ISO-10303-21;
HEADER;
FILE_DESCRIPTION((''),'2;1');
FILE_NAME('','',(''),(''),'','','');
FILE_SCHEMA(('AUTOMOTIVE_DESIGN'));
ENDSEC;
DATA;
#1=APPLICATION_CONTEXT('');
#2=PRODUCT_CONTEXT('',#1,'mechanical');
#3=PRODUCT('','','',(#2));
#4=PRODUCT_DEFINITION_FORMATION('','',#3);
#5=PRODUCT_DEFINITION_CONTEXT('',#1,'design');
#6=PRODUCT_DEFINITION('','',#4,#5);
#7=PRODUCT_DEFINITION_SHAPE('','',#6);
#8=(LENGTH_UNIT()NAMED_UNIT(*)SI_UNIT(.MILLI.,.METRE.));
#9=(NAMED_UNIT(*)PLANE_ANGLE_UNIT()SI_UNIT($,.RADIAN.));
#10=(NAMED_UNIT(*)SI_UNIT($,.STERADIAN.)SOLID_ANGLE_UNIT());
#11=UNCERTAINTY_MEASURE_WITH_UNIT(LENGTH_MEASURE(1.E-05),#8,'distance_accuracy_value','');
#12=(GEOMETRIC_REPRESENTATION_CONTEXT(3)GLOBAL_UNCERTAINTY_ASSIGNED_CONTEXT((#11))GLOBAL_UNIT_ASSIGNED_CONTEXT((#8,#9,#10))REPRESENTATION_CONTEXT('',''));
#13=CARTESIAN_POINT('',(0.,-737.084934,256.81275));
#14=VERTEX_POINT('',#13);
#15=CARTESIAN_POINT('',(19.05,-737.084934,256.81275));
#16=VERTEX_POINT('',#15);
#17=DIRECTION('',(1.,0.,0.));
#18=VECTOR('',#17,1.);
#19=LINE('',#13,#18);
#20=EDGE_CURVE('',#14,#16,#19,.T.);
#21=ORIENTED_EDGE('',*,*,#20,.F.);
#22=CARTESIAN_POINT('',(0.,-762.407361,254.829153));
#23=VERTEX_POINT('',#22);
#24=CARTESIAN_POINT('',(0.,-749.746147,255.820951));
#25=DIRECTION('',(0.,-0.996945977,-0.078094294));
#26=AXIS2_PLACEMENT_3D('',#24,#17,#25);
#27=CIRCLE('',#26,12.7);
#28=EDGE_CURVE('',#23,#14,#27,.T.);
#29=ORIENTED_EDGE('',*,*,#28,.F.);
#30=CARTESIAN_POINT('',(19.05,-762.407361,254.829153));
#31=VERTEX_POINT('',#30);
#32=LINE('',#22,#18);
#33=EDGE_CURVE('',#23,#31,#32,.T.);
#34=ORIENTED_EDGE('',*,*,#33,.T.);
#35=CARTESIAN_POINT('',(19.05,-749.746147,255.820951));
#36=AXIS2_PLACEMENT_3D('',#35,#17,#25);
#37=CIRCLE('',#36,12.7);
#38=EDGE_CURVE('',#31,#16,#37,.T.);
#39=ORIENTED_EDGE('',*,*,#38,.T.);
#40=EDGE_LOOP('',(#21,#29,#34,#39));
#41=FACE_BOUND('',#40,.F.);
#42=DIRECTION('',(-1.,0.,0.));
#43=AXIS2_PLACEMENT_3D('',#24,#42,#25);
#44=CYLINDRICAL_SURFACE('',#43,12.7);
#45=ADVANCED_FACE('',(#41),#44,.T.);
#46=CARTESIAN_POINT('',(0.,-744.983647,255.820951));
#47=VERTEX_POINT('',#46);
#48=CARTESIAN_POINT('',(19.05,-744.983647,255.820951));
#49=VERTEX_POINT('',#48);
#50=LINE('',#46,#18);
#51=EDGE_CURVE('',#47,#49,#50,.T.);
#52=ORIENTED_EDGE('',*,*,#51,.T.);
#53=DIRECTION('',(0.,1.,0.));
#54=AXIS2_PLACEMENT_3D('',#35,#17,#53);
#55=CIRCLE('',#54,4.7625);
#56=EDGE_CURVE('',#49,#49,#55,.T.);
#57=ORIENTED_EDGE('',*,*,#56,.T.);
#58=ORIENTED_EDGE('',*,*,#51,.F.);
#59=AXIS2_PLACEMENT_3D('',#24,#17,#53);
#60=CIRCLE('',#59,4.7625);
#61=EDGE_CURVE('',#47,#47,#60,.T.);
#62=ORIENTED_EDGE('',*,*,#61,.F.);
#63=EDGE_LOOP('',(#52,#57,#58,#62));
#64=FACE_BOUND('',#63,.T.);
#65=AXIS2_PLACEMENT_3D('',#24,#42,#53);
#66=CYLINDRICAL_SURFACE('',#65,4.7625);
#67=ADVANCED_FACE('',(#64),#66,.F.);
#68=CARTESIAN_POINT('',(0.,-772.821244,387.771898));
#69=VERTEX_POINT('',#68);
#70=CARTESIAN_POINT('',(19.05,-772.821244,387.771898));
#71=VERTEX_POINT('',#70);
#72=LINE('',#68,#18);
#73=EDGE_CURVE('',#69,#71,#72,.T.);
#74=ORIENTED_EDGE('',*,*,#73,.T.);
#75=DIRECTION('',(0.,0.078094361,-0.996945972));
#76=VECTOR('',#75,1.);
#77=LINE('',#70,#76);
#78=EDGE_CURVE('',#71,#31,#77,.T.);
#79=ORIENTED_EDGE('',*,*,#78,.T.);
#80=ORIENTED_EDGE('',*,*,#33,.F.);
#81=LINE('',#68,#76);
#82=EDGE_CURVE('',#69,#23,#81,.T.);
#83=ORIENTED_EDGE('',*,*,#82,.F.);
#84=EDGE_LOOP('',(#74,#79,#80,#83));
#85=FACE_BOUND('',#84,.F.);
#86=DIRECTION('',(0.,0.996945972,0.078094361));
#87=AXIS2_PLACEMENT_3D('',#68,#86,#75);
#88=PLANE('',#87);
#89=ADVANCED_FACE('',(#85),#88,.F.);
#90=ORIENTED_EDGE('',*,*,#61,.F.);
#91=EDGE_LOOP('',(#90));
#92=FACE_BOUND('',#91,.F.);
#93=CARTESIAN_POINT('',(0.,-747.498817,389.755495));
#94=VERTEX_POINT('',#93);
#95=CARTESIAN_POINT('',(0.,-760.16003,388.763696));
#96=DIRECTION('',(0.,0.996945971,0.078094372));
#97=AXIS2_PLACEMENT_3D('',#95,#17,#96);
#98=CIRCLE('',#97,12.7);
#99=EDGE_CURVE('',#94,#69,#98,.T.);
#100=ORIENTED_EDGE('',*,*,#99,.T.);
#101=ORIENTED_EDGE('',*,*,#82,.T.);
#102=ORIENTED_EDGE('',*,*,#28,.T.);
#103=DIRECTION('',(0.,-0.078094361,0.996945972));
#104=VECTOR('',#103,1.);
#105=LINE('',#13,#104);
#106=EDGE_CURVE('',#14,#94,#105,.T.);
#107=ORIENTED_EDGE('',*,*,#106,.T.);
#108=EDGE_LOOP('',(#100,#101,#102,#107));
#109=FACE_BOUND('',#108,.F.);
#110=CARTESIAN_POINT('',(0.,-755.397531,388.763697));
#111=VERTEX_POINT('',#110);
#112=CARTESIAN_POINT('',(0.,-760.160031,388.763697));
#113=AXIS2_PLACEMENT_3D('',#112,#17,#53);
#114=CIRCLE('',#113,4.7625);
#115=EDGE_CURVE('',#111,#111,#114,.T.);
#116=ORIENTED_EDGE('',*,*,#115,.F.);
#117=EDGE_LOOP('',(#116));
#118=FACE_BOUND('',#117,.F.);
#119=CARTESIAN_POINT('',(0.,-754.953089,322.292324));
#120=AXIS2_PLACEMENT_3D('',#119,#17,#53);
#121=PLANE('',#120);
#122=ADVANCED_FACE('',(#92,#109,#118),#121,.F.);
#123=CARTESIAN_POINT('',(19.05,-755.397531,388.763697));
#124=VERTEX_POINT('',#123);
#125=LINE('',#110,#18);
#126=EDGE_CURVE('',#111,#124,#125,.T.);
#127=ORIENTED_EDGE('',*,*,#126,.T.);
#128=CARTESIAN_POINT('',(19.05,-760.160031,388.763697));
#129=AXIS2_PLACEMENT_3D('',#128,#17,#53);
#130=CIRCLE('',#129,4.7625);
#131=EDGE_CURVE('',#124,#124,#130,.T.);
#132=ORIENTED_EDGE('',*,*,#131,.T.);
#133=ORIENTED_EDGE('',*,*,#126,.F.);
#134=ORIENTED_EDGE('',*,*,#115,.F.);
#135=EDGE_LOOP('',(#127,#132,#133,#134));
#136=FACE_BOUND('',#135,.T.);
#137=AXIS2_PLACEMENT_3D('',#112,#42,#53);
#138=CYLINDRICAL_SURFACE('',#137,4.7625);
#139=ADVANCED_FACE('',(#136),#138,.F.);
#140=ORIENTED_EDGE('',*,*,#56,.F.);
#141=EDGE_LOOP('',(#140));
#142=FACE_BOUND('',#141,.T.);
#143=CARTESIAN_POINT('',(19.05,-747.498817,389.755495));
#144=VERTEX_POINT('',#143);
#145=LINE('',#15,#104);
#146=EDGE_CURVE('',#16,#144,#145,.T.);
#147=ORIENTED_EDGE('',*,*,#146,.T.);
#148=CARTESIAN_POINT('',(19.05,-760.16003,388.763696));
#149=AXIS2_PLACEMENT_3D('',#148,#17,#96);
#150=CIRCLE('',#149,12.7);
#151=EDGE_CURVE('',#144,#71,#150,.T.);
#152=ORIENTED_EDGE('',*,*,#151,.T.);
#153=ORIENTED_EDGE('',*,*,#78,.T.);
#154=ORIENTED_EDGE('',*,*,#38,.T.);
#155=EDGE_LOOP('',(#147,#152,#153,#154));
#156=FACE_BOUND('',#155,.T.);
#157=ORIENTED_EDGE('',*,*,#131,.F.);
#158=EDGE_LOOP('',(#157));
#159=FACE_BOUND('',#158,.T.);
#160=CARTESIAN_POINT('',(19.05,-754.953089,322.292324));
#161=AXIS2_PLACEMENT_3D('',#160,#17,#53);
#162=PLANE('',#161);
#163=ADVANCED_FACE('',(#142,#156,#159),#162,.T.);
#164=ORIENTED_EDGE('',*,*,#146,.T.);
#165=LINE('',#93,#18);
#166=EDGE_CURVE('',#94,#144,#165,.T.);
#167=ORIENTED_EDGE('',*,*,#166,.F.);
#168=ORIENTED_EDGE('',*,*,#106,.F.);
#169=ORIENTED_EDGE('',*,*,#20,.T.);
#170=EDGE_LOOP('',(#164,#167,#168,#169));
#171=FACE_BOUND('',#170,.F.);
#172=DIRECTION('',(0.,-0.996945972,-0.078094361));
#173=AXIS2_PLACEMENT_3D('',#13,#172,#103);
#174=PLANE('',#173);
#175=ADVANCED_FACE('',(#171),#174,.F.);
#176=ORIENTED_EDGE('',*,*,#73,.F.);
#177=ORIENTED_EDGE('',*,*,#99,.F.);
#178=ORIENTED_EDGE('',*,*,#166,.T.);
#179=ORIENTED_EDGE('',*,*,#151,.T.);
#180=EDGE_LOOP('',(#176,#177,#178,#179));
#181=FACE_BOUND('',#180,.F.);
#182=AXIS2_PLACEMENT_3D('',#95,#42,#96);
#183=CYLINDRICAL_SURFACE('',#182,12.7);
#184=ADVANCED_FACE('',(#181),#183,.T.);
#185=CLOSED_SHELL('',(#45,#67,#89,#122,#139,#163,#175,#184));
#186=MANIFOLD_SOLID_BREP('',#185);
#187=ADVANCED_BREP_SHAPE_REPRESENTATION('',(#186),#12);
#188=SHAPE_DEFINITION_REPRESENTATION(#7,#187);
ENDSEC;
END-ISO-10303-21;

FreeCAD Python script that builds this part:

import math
import FreeCAD as App
import Part
import Sketcher
from FreeCAD import Vector
Q = App.Units.Quantity

doc = App.newDocument("Part")
body = doc.addObject("PartDesign::Body", "Body")

# Sketch on YZ plane
sketch1 = body.newObject("Sketcher::SketchObject", "Sketch")
sketch1.AttachmentSupport = (doc.getObject("YZ_Plane"), [""])
sketch1.MapMode = "FlatFace"
sketch1.addGeometry(Part.ArcOfCircle(Part.Circle(Vector(-760.2, 388.8, 0), Vector(0, 0, 1), 12.7), math.radians(4), math.radians(184)), False)
sketch1.addGeometry(Part.LineSegment(Vector(-772.8, 387.8, 0), Vector(-762.4, 254.8, 0)), False)
sketch1.addGeometry(Part.ArcOfCircle(Part.Circle(Vector(-749.7, 255.8, 0), Vector(0, 0, 1), 12.7), math.radians(-176), math.radians(4)), False)
sketch1.addGeometry(Part.LineSegment(Vector(-737.1, 256.8, 0), Vector(-747.5, 389.8, 0)), False)
sketch1.addGeometry(Part.Circle(Vector(-749.7, 255.8, 0), Vector(0, 0, 1), 4.8), False)
sketch1.addGeometry(Part.Circle(Vector(-760.2, 388.8, 0), Vector(0, 0, 1), 4.8), False)
sketch1.addConstraint(Sketcher.Constraint("Tangent", 0, 2, 1, 1))
sketch1.addConstraint(Sketcher.Constraint("Tangent", 1, 2, 2, 1))
sketch1.addConstraint(Sketcher.Constraint("Tangent", 2, 2, 3, 1))
sketch1.addConstraint(Sketcher.Constraint("Tangent", 3, 2, 0, 1))
sketch1.addConstraint(Sketcher.Constraint("Coincident", 4, 3, 2, 3))
sketch1.addConstraint(Sketcher.Constraint("Coincident", 5, 3, 0, 3))
sketch1.addConstraint(Sketcher.Constraint("Equal", 0, 2))
sketch1.addConstraint(Sketcher.Constraint("Equal", 4, 5))
sketch1.addConstraint(Sketcher.Constraint("Radius", 0, Q("0.5 in")))
sketch1.addConstraint(Sketcher.Constraint("Diameter", 4, Q("0.375 in")))
sketch1.addConstraint(Sketcher.Constraint("Distance", 1, Q("5.25 in")))
sketch1.addConstraint(Sketcher.Constraint("DistanceY", 0, 2, 5, 3, 0.991799))
sketch1.addConstraint(Sketcher.Constraint("DistanceX", 0, 3, -1, 1, 760.16003))
sketch1.addConstraint(Sketcher.Constraint("DistanceY", -1, 1, 2, 3, 255.820951))
pad1 = body.newObject("PartDesign::Pad", "Pad")
pad1.Profile = sketch1
pad1.Length = Q("0.75 in")

doc.recompute()
